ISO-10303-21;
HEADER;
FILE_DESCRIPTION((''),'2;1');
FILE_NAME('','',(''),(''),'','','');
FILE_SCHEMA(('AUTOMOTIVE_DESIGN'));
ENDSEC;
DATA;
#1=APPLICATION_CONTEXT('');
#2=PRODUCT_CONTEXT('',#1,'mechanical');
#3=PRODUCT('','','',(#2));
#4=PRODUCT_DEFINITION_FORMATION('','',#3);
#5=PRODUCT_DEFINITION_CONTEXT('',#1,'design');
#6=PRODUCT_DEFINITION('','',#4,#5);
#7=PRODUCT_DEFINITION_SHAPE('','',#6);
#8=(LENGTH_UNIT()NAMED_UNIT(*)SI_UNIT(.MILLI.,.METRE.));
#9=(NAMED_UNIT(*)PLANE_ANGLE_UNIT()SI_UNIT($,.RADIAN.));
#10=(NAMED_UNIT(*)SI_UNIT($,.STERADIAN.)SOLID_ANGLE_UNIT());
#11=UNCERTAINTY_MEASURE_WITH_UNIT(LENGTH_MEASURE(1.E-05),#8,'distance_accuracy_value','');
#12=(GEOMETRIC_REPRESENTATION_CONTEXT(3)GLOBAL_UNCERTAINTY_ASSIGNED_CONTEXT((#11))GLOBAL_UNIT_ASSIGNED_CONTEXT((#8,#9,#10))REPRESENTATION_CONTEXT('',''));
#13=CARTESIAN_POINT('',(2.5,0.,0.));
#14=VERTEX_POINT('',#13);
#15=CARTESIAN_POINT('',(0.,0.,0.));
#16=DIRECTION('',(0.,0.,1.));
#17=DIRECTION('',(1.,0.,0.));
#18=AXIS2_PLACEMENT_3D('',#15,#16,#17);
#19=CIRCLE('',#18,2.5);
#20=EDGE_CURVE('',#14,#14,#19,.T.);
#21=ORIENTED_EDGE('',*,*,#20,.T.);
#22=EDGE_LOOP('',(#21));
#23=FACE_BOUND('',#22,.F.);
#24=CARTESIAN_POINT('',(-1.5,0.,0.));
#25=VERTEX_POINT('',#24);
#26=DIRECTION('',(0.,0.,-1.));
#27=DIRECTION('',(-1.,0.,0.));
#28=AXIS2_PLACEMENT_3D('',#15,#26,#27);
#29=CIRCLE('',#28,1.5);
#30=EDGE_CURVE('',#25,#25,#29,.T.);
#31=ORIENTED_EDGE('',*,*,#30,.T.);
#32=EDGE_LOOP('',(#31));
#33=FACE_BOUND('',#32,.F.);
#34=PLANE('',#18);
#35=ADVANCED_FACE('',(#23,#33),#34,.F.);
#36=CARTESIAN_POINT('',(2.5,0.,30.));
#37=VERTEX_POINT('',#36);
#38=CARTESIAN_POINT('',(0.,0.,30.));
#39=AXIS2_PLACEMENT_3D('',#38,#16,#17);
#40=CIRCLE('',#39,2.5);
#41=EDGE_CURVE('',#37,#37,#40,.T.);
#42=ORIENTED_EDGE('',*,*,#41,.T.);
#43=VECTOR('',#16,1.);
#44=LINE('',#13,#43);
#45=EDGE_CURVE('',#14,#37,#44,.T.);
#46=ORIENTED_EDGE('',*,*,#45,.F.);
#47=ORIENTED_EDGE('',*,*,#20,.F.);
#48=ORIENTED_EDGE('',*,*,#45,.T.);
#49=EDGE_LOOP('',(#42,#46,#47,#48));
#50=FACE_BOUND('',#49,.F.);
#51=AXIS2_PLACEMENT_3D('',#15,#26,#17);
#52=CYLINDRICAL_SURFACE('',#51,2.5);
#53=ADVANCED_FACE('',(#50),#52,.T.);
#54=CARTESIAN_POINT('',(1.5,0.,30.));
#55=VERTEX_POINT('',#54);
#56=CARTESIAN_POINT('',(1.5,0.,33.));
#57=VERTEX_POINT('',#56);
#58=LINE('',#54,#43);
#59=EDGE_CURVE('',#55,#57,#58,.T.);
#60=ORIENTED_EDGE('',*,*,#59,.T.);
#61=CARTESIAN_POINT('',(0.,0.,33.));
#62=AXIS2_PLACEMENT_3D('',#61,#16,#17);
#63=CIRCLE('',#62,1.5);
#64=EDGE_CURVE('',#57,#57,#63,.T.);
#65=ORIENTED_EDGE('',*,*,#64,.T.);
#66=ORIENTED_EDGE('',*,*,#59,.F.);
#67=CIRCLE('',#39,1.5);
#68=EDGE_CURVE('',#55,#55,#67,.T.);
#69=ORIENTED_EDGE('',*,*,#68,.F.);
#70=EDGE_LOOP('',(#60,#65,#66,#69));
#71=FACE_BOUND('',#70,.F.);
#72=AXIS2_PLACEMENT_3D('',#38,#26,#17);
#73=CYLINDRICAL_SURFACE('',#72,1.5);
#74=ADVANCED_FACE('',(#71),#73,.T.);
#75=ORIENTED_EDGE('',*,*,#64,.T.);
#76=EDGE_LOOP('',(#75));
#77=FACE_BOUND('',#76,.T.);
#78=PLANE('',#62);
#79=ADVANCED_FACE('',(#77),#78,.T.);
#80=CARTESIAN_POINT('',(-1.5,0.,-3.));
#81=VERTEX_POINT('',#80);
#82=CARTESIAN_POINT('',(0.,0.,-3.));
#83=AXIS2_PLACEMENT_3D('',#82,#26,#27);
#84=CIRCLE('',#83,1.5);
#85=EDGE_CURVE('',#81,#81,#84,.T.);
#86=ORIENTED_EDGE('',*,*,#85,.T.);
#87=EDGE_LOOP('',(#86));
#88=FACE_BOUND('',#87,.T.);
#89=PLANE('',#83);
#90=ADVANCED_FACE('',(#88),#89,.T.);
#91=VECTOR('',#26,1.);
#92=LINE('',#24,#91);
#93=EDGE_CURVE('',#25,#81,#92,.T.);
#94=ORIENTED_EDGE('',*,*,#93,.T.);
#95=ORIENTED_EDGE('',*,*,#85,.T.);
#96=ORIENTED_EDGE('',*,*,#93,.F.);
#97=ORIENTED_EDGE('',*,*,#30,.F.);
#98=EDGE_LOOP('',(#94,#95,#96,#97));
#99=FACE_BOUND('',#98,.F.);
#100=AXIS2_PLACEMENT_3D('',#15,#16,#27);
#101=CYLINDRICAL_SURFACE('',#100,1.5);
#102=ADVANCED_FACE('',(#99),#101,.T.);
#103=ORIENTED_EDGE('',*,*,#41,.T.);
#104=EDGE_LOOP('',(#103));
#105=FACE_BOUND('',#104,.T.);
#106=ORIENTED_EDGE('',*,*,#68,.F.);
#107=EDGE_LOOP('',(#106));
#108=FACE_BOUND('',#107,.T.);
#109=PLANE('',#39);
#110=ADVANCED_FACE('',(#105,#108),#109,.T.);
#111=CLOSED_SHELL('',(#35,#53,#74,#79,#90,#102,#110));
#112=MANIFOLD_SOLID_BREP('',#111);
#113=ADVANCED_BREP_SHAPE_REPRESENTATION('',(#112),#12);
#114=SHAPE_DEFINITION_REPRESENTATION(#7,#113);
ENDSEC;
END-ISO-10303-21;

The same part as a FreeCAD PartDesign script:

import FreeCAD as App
import Part
import Sketcher

V = App.Vector
Q = App.Units.Quantity

doc = App.newDocument("Part")
body = doc.addObject("PartDesign::Body", "Body")

# Sketch on XY plane
sketch1 = body.newObject("Sketcher::SketchObject", "Sketch")
sketch1.AttachmentSupport = (doc.getObject("XY_Plane"), [""])
sketch1.MapMode = "FlatFace"
sketch1.addGeometry(Part.Circle(V(0, 0, 0), V(0, 0, 1), 2.5), False)
sketch1.addConstraint([
    Sketcher.Constraint("Coincident", 0, 3, -1, 1),
    Sketcher.Constraint("Diameter", 0, Q("5 mm")),
])
pad1 = body.newObject("PartDesign::Pad", "Pad")
pad1.Profile = sketch1
pad1.Length = 30

# Sketch on XY plane
sketch2 = body.newObject("Sketcher::SketchObject", "Sketch001")
sketch2.AttachmentSupport = (doc.getObject("XY_Plane"), [""])
sketch2.MapMode = "FlatFace"
sketch2.AttachmentOffset = App.Placement(V(0, 0, 30), App.Rotation())
sketch2.addGeometry(Part.Circle(V(0, 0, 0), V(0, 0, 1), 1.5), False)
sketch2.addConstraint([
    Sketcher.Constraint("Coincident", 0, 3, -1, 1),
    Sketcher.Constraint("Diameter", 0, Q("3 mm")),
])
pad2 = body.newObject("PartDesign::Pad", "Pad001")
pad2.Profile = sketch2
pad2.Length = 3

# Sketch on XY plane
sketch3 = body.newObject("Sketcher::SketchObject", "Sketch002")
sketch3.AttachmentSupport = (doc.getObject("XY_Plane"), [""])
sketch3.MapMode = "FlatFace"
sketch3.addGeometry(Part.Circle(V(0, 0, 0), V(0, 0, 1), 1.5), False)
sketch3.addConstraint([
    Sketcher.Constraint("Coincident", 0, 3, -1, 1),
    Sketcher.Constraint("Diameter", 0, Q("3 mm")),
])
pad3 = body.newObject("PartDesign::Pad", "Pad002")
pad3.Profile = sketch3
pad3.Length = 3
pad3.Reversed = True

doc.recompute()
